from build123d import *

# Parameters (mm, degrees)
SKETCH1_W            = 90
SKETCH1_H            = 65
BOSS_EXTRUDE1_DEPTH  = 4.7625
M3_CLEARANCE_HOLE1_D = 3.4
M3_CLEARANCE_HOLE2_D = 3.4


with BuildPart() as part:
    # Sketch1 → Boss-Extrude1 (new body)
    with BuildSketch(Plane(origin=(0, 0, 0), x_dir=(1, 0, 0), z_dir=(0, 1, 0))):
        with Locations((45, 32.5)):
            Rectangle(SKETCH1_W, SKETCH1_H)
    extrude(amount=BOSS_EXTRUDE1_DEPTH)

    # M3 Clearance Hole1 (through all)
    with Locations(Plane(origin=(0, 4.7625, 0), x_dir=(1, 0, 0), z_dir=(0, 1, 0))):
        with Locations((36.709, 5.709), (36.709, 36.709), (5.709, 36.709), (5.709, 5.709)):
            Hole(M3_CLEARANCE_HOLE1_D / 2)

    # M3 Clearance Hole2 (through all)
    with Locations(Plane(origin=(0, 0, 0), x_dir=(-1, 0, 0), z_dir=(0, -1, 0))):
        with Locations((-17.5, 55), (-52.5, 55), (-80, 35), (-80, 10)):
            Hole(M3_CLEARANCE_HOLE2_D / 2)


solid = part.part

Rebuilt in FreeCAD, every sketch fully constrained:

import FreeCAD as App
import Part
import Sketcher

V = App.Vector
Q = App.Units.Quantity


def add_polygon(sketch, points):
    """Adds a closed chain of lines whose ends are joined by coincident constraints."""
    first, n = sketch.GeometryCount, len(points)
    for a, b in zip(points, points[1:] + points[:1]):
        sketch.addGeometry(Part.LineSegment(App.Vector(*a, 0), App.Vector(*b, 0)), False)
    for i in range(n):
        sketch.addConstraint(Sketcher.Constraint("Coincident", first + i, 2, first + (i + 1) % n, 1))

doc = App.newDocument("Part")
body = doc.addObject("PartDesign::Body", "Body")

sketch1 = doc.addObject("Sketcher::SketchObject", "Sketch")
body.addObject(sketch1)
sketch1.AttachmentSupport = (doc.XZ_Plane, [""])
sketch1.MapMode = "FlatFace"
add_polygon(sketch1, [(0, -65), (0, 0), (90, 0), (90, -65)])
sketch1.addConstraint([
    Sketcher.Constraint("Vertical", 0),
    Sketcher.Constraint("Horizontal", 1),
    Sketcher.Constraint("Vertical", 2),
    Sketcher.Constraint("Horizontal", 3),
    Sketcher.Constraint("Coincident", 0, 2, -1, 1),
    Sketcher.Constraint("DistanceX", 1, 1, 1, 2, Q("90 mm")),
    Sketcher.Constraint("DistanceY", 0, 1, 0, 2, Q("65 mm")),
])
pad1 = doc.addObject("PartDesign::Pad", "Pad")
body.addObject(pad1)
pad1.Profile = sketch1
pad1.Length = 4.7625
pad1.Reversed = True

sketch2 = doc.addObject("Sketcher::SketchObject", "Sketch001")
body.addObject(sketch2)
sketch2.AttachmentSupport = (doc.XZ_Plane, [""])
sketch2.MapMode = "FlatFace"
sketch2.AttachmentOffset = App.Placement(V(0, 0, -4.7625), App.Rotation())
sketch2.addGeometry([
    Part.Circle(V(36.7, -5.7, 0), V(0, 0, 1), 1.7),
    Part.Circle(V(36.7, -36.7, 0), V(0, 0, 1), 1.7),
    Part.Circle(V(5.7, -36.7, 0), V(0, 0, 1), 1.7),
    Part.Circle(V(5.7, -5.7, 0), V(0, 0, 1), 1.7),
], False)
sketch2.addConstraint([
    Sketcher.Constraint("Equal", 0, 1),
    Sketcher.Constraint("Equal", 1, 2),
    Sketcher.Constraint("Equal", 2, 3),
    Sketcher.Constraint("Horizontal", 1, 3, 2, 3),
    Sketcher.Constraint("Horizontal", 0, 3, 3, 3),
    Sketcher.Constraint("Vertical", 0, 3, 1, 3),
    Sketcher.Constraint("Vertical", 2, 3, 3, 3),
    Sketcher.Constraint("Diameter", 0, Q("3.4 mm")),
    Sketcher.Constraint("DistanceY", 1, 3, 0, 3, Q("31 mm")),
    Sketcher.Constraint("DistanceX", 2, 3, 1, 3, Q("31 mm")),
    Sketcher.Constraint("DistanceX", -1, 1, 0, 3, Q("36.709 mm")),
    Sketcher.Constraint("DistanceY", 0, 3, -1, 1, Q("5.709 mm")),
])
doc.recompute()
hole = doc.addObject("PartDesign::Hole", "Hole")
body.addObject(hole)
hole.Profile = sketch2
hole.ThreadType = "None"
hole.Diameter = 3.4
hole.DepthType = "ThroughAll"
hole.Reversed = True

sketch3 = doc.addObject("Sketcher::SketchObject", "Sketch002")
body.addObject(sketch3)
sketch3.AttachmentSupport = (doc.XZ_Plane, [""])
sketch3.MapMode = "FlatFace"
sketch3.addGeometry([
    Part.Circle(V(17.5, -55, 0), V(0, 0, 1), 1.7),
    Part.Circle(V(52.5, -55, 0), V(0, 0, 1), 1.7),
    Part.Circle(V(80, -35, 0), V(0, 0, 1), 1.7),
    Part.Circle(V(80, -10, 0), V(0, 0, 1), 1.7),
], False)
sketch3.addConstraint([
    Sketcher.Constraint("Equal", 0, 1),
    Sketcher.Constraint("Equal", 1, 2),
    Sketcher.Constraint("Equal", 2, 3),
    Sketcher.Constraint("Horizontal", 0, 3, 1, 3),
    Sketcher.Constraint("Vertical", 2, 3, 3, 3),
    Sketcher.Constraint("Diameter", 0, Q("3.4 mm")),
    Sketcher.Constraint("DistanceY", 0, 3, -1, 1, Q("55 mm")),
    Sketcher.Constraint("DistanceX", -1, 1, 2, 3, Q("80 mm")),
    Sketcher.Constraint("DistanceY", 2, 3, -1, 1, Q("35 mm")),
    Sketcher.Constraint("DistanceY", 3, 3, -1, 1, Q("10 mm")),
    Sketcher.Constraint("DistanceX", 0, 3, 1, 3, Q("35 mm")),
    Sketcher.Constraint("DistanceX", -1, 1, 0, 3, Q("17.5 mm")),
])
doc.recompute()
hole2 = doc.addObject("PartDesign::Hole", "Hole001")
body.addObject(hole2)
hole2.Profile = sketch3
hole2.ThreadType = "None"
hole2.Diameter = 3.4
hole2.DepthType = "ThroughAll"

doc.recompute()
